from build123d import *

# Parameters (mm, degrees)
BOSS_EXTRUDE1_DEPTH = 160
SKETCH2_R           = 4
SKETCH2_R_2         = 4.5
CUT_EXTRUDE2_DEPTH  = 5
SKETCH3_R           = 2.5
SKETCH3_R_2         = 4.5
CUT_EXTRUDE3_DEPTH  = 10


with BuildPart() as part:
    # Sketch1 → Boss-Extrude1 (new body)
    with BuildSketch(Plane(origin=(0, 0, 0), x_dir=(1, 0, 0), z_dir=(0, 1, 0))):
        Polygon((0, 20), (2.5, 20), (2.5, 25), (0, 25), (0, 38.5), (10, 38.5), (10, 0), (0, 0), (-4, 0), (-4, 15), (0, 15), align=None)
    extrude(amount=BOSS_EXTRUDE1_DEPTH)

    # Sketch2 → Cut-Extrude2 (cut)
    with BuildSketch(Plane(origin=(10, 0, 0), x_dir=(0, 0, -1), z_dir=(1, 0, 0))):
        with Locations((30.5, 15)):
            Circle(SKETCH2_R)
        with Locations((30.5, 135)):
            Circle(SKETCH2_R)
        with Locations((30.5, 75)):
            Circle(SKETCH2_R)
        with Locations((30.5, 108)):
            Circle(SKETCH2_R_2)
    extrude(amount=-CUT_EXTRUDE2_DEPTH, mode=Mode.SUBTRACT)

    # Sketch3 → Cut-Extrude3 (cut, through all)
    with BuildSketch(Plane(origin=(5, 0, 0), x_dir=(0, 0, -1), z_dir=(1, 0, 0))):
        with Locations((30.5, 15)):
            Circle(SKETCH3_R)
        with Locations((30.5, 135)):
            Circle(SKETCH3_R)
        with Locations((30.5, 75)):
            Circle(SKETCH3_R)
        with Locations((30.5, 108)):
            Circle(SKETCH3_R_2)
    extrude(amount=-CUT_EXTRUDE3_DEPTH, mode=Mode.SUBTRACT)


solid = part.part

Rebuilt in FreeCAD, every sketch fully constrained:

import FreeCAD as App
import Part
import Sketcher
from FreeCAD import Vector


def add_polygon(sketch, points):
    """Adds a closed chain of lines whose ends are joined by coincident constraints."""
    first, n = sketch.GeometryCount, len(points)
    for a, b in zip(points, points[1:] + points[:1]):
        sketch.addGeometry(Part.LineSegment(App.Vector(*a, 0), App.Vector(*b, 0)), False)
    for i in range(n):
        sketch.addConstraint(Sketcher.Constraint("Coincident", first + i, 2, first + (i + 1) % n, 1))

doc = App.newDocument("Part")
params = doc.addObject("Spreadsheet::Sheet", "Params")
for row, (alias, value) in enumerate([
    ("sketch1_width", "4 mm"),
    ("sketch1_width2", "14 mm"),
    ("sketch1_height", "5 mm"),
    ("sketch1_height2", "15 mm"),
    ("sketch1_width3", "2.5 mm"),
    ("pad1_length", "160 mm"),
    ("sketch2_diameter", "8 mm"),
    ("sketch2_diameter2", "9 mm"),
    ("pocket1_length", "5 mm"),
    ("sketch3_diameter", "5 mm"),
    ("sketch3_diameter2", "9 mm"),
], start=1):
    params.set(f"A{row}", alias)
    params.set(f"B{row}", "=" + value)
    params.setAlias(f"B{row}", alias)

body = doc.addObject("PartDesign::Body", "Body")

# Sketch on XZ plane
sketch1 = body.newObject("Sketcher::SketchObject", "Sketch")
sketch1.AttachmentSupport = (doc.getObject("XZ_Plane"), [""])
sketch1.MapMode = "FlatFace"
add_polygon(sketch1, [(2.5, -20), (0, -20), (0, -15), (-4, -15), (-4, 0), (10, 0), (10, -38.5), (0, -38.5), (0, -25), (2.5, -25)])  # lines 0-9
sketch1.addConstraint([
    Sketcher.Constraint("Horizontal", 0),
    Sketcher.Constraint("Vertical", 1),
    Sketcher.Constraint("Horizontal", 2),
    Sketcher.Constraint("Vertical", 3),
    Sketcher.Constraint("Horizontal", 4),
    Sketcher.Constraint("Vertical", 5),
    Sketcher.Constraint("Horizontal", 6),
    Sketcher.Constraint("Vertical", 7),
    Sketcher.Constraint("Horizontal", 8),
    Sketcher.Constraint("Vertical", 9),
    Sketcher.Constraint("PointOnObject", 0, 2, -2),
    Sketcher.Constraint("PointOnObject", 3, 2, -1),
    Sketcher.Constraint("PointOnObject", 6, 2, -2),
    Sketcher.Constraint("Equal", 1, 9),
    Sketcher.Constraint("DistanceX", 2, 2, 2, 1, 4.0),
    Sketcher.Constraint("DistanceX", 4, 1, 4, 2, 14.0),
    Sketcher.Constraint("DistanceY", 1, 1, 1, 2, 5.0),
    Sketcher.Constraint("DistanceY", 3, 1, 3, 2, 15.0),
    Sketcher.Constraint("DistanceX", 0, 2, 0, 1, 2.5),
    Sketcher.Constraint("DistanceY", 5, 2, 5, 1, 38.5),
])
sketch1.setExpression("Constraints[24]", "Params.sketch1_width")
sketch1.setExpression("Constraints[25]", "Params.sketch1_width2")
sketch1.setExpression("Constraints[26]", "Params.sketch1_height")
sketch1.setExpression("Constraints[27]", "Params.sketch1_height2")
sketch1.setExpression("Constraints[28]", "Params.sketch1_width3")
pad1 = body.newObject("PartDesign::Pad", "Pad")
pad1.Profile = sketch1
pad1.setExpression("Length", "Params.pad1_length")
pad1.Reversed = True

# Sketch on YZ plane
sketch2 = body.newObject("Sketcher::SketchObject", "Sketch001")
sketch2.AttachmentSupport = (doc.getObject("YZ_Plane"), [""])
sketch2.MapMode = "FlatFace"
sketch2.AttachmentOffset = App.Placement(Vector(0, 0, 10), App.Rotation())
sketch2.addGeometry([
    Part.Circle(Vector(15, -30.5, 0), Vector(0, 0, 1), 4),
    Part.Circle(Vector(135, -30.5, 0), Vector(0, 0, 1), 4),
    Part.Circle(Vector(75, -30.5, 0), Vector(0, 0, 1), 4),
    Part.Circle(Vector(108, -30.5, 0), Vector(0, 0, 1), 4.5),
], False)
sketch2.addConstraint([
    Sketcher.Constraint("Equal", 0, 1),
    Sketcher.Constraint("Equal", 1, 2),
    Sketcher.Constraint("Horizontal", 0, 3, 1, 3),
    Sketcher.Constraint("Horizontal", 1, 3, 2, 3),
    Sketcher.Constraint("Horizontal", 2, 3, 3, 3),
    Sketcher.Constraint("Diameter", 0, 8.0),
    Sketcher.Constraint("Diameter", 3, 9.0),
    Sketcher.Constraint("DistanceX", -1, 1, 0, 3, 15.0),
    Sketcher.Constraint("DistanceX", -1, 1, 1, 3, 135.0),
    Sketcher.Constraint("DistanceX", -1, 1, 2, 3, 75.0),
    Sketcher.Constraint("DistanceX", -1, 1, 3, 3, 108.0),
    Sketcher.Constraint("DistanceY", 0, 3, -1, 1, 30.5),
])
sketch2.setExpression("Constraints[5]", "Params.sketch2_diameter")
sketch2.setExpression("Constraints[6]", "Params.sketch2_diameter2")
pocket1 = body.newObject("PartDesign::Pocket", "Pocket")
pocket1.Profile = sketch2
pocket1.setExpression("Length", "Params.pocket1_length")

# Sketch on YZ plane
sketch3 = body.newObject("Sketcher::SketchObject", "Sketch002")
sketch3.AttachmentSupport = (doc.getObject("YZ_Plane"), [""])
sketch3.MapMode = "FlatFace"
sketch3.AttachmentOffset = App.Placement(Vector(0, 0, 5), App.Rotation())
sketch3.addGeometry([
    Part.Circle(Vector(15, -30.5, 0), Vector(0, 0, 1), 2.5),
    Part.Circle(Vector(135, -30.5, 0), Vector(0, 0, 1), 2.5),
    Part.Circle(Vector(75, -30.5, 0), Vector(0, 0, 1), 2.5),
    Part.Circle(Vector(108, -30.5, 0), Vector(0, 0, 1), 4.5),
], False)
sketch3.addConstraint([
    Sketcher.Constraint("Equal", 0, 1),
    Sketcher.Constraint("Equal", 1, 2),
    Sketcher.Constraint("Horizontal", 0, 3, 1, 3),
    Sketcher.Constraint("Horizontal", 1, 3, 2, 3),
    Sketcher.Constraint("Horizontal", 2, 3, 3, 3),
    Sketcher.Constraint("Diameter", 0, 5.0),
    Sketcher.Constraint("Diameter", 3, 9.0),
    Sketcher.Constraint("DistanceX", -1, 1, 0, 3, 15.0),
    Sketcher.Constraint("DistanceX", -1, 1, 1, 3, 135.0),
    Sketcher.Constraint("DistanceX", -1, 1, 2, 3, 75.0),
    Sketcher.Constraint("DistanceX", -1, 1, 3, 3, 108.0),
    Sketcher.Constraint("DistanceY", 0, 3, -1, 1, 30.5),
])
sketch3.setExpression("Constraints[5]", "Params.sketch3_diameter")
sketch3.setExpression("Constraints[6]", "Params.sketch3_diameter2")
pocket2 = body.newObject("PartDesign::Pocket", "Pocket001")
pocket2.Profile = sketch3
pocket2.Type = "ThroughAll"

doc.recompute()
